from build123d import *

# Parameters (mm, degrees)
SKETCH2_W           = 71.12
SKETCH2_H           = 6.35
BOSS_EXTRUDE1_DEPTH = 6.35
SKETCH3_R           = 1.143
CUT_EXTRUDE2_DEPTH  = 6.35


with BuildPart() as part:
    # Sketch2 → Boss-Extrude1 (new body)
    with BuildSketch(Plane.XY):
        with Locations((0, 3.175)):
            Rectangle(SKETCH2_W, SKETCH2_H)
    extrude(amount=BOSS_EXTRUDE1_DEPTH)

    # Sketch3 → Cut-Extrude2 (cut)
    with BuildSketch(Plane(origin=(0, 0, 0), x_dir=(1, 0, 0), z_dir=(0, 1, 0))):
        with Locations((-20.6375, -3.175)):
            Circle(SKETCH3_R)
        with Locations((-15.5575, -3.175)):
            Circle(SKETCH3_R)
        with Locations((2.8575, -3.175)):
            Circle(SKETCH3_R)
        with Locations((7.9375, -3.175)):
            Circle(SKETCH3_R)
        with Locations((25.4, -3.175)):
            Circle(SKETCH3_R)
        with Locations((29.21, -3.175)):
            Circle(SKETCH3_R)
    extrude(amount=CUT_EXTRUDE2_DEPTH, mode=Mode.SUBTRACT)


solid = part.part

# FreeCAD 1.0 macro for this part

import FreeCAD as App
import Part
import Sketcher

V = App.Vector
Q = App.Units.Quantity

doc = App.newDocument("Part")
body = doc.addObject("PartDesign::Body", "Body")

# Sketch on XY plane
sketch1 = doc.addObject("Sketcher::SketchObject", "Sketch")
body.addObject(sketch1)
sketch1.AttachmentSupport = (doc.XY_Plane, [""])
sketch1.MapMode = "FlatFace"
sketch1.addGeometry(Part.LineSegment(V(-36, 6, 0), V(-36, 0, 0)), False)
sketch1.addGeometry(Part.LineSegment(V(-36, 0, 0), V(36, 0, 0)), False)
sketch1.addGeometry(Part.LineSegment(V(36, 0, 0), V(36, 6, 0)), False)
sketch1.addGeometry(Part.LineSegment(V(36, 6, 0), V(-36, 6, 0)), False)
sketch1.addConstraint(Sketcher.Constraint("Coincident", 0, 2, 1, 1))
sketch1.addConstraint(Sketcher.Constraint("Coincident", 1, 2, 2, 1))
sketch1.addConstraint(Sketcher.Constraint("Coincident", 2, 2, 3, 1))
sketch1.addConstraint(Sketcher.Constraint("Coincident", 3, 2, 0, 1))
sketch1.addConstraint(Sketcher.Constraint("Vertical", 0))
sketch1.addConstraint(Sketcher.Constraint("Horizontal", 1))
sketch1.addConstraint(Sketcher.Constraint("Vertical", 2))
sketch1.addConstraint(Sketcher.Constraint("Horizontal", 3))
sketch1.addConstraint(Sketcher.Constraint("Symmetric", 0, 2, 1, 2, -1, 1))
sketch1.addConstraint(Sketcher.Constraint("DistanceX", 1, 1, 1, 2, Q("2.8 in")))
sketch1.addConstraint(Sketcher.Constraint("DistanceY", 0, 2, 0, 1, Q("0.25 in")))
pad1 = doc.addObject("PartDesign::Pad", "Pad")
body.addObject(pad1)
pad1.Profile = sketch1
pad1.Length = Q("0.25 in")

# Sketch on XZ plane
sketch2 = doc.addObject("Sketcher::SketchObject", "Sketch001")
body.addObject(sketch2)
sketch2.AttachmentSupport = (doc.XZ_Plane, [""])
sketch2.MapMode = "FlatFace"
sketch2.addGeometry(Part.Circle(V(-20.6, 3.2, 0), V(0, 0, 1), 1.1), False)
sketch2.addGeometry(Part.Circle(V(-15.6, 3.2, 0), V(0, 0, 1), 1.1), False)
sketch2.addGeometry(Part.Circle(V(2.9, 3.2, 0), V(0, 0, 1), 1.1), False)
sketch2.addGeometry(Part.Circle(V(7.9, 3.2, 0), V(0, 0, 1), 1.1), False)
sketch2.addGeometry(Part.Circle(V(25.4, 3.2, 0), V(0, 0, 1), 1.1), False)
sketch2.addGeometry(Part.Circle(V(29.2, 3.2, 0), V(0, 0, 1), 1.1), False)
sketch2.addConstraint(Sketcher.Constraint("Equal", 0, 1))
sketch2.addConstraint(Sketcher.Constraint("Equal", 1, 2))
sketch2.addConstraint(Sketcher.Constraint("Equal", 2, 3))
sketch2.addConstraint(Sketcher.Constraint("Equal", 3, 4))
sketch2.addConstraint(Sketcher.Constraint("Equal", 4, 5))
sketch2.addConstraint(Sketcher.Constraint("Horizontal", 0, 3, 1, 3))
sketch2.addConstraint(Sketcher.Constraint("Horizontal", 1, 3, 2, 3))
sketch2.addConstraint(Sketcher.Constraint("Horizontal", 2, 3, 3, 3))
sketch2.addConstraint(Sketcher.Constraint("Horizontal", 3, 3, 4, 3))
sketch2.addConstraint(Sketcher.Constraint("Horizontal", 4, 3, 5, 3))
sketch2.addConstraint(Sketcher.Constraint("Diameter", 0, Q("0.09 in")))
sketch2.addConstraint(Sketcher.Constraint("DistanceX", -1, 1, 4, 3, Q("1 in")))
sketch2.addConstraint(Sketcher.Constraint("DistanceX", 0, 3, 1, 3, Q("0.2 in")))
sketch2.addConstraint(Sketcher.Constraint("DistanceX", 2, 3, 3, 3, Q("0.2 in")))
sketch2.addConstraint(Sketcher.Constraint("DistanceX", -1, 1, 5, 3, Q("1.15 in")))
sketch2.addConstraint(Sketcher.Constraint("DistanceX", 0, 3, -1, 1, Q("0.8125 in")))
sketch2.addConstraint(Sketcher.Constraint("DistanceY", -1, 1, 0, 3, Q("0.125 in")))
sketch2.addConstraint(Sketcher.Constraint("DistanceX", -1, 1, 3, 3, Q("0.3125 in")))
pocket1 = doc.addObject("PartDesign::Pocket", "Pocket")
body.addObject(pocket1)
pocket1.Profile = sketch2
pocket1.Length = Q("0.25 in")

doc.recompute()
